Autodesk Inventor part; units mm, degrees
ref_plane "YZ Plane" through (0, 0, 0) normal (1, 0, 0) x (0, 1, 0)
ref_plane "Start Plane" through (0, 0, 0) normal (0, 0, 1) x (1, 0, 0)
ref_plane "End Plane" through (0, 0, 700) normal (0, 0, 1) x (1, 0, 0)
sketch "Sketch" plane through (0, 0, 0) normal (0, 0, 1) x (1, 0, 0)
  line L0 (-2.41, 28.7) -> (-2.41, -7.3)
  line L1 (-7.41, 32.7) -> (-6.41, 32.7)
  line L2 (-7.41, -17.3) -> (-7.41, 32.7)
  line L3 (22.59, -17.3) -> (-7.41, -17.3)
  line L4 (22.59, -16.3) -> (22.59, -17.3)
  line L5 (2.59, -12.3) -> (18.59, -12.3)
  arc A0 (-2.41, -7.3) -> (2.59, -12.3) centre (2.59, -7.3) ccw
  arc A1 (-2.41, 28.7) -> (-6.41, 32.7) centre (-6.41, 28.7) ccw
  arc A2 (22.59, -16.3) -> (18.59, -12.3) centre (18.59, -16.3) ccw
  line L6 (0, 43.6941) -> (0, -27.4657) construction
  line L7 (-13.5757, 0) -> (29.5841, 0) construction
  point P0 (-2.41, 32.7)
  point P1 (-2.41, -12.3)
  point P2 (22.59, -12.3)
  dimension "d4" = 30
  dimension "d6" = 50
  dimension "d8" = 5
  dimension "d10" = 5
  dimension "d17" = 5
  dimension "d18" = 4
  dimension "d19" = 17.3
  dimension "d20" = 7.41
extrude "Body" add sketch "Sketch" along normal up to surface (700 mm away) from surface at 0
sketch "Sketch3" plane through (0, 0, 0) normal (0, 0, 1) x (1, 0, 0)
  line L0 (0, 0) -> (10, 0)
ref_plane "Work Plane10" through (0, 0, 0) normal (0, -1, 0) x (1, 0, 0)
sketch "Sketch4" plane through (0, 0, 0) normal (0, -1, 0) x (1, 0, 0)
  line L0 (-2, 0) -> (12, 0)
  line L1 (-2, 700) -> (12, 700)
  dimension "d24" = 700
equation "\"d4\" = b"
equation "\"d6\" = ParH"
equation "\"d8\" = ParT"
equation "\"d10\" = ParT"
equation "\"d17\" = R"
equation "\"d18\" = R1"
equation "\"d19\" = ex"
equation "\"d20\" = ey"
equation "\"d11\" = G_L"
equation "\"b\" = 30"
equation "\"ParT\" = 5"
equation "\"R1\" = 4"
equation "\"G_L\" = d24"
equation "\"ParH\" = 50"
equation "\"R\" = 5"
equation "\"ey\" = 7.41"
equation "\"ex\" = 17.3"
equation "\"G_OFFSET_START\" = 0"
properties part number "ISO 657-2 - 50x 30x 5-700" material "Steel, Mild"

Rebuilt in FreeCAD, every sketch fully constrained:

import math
import FreeCAD as App
import Part
import Sketcher

V = App.Vector
Q = App.Units.Quantity

doc = App.newDocument("Part")
body = doc.addObject("PartDesign::Body", "Body")

# Sketch on XY plane
sketch1 = body.newObject("Sketcher::SketchObject", "Sketch")
sketch1.AttachmentSupport = (doc.getObject("XY_Plane"), [""])
sketch1.MapMode = "FlatFace"
sketch1.addGeometry([
    Part.LineSegment(V(-2.4, -7.3, 0), V(-2.4, 28.7, 0)),  # 0
    Part.ArcOfCircle(Part.Circle(V(-6.4, 28.7, 0), V(0, 0, 1), 4), math.radians(0), math.radians(90)),  # 1
    Part.LineSegment(V(-6.4, 32.7, 0), V(-7.4, 32.7, 0)),  # 2
    Part.LineSegment(V(-7.4, 32.7, 0), V(-7.4, -17.3, 0)),  # 3
    Part.LineSegment(V(-7.4, -17.3, 0), V(22.6, -17.3, 0)),  # 4
    Part.LineSegment(V(22.6, -17.3, 0), V(22.6, -16.3, 0)),  # 5
    Part.ArcOfCircle(Part.Circle(V(18.6, -16.3, 0), V(0, 0, 1), 4), math.radians(0), math.radians(90)),  # 6
    Part.LineSegment(V(18.6, -12.3, 0), V(2.6, -12.3, 0)),  # 7
    Part.ArcOfCircle(Part.Circle(V(2.6, -7.3, 0), V(0, 0, 1), 5), math.radians(180), math.radians(270)),  # 8
], False)
sketch1.addConstraint([
    Sketcher.Constraint("Tangent", 0, 2, 1, 1),
    Sketcher.Constraint("Tangent", 1, 2, 2, 1),
    Sketcher.Constraint("Coincident", 2, 2, 3, 1),
    Sketcher.Constraint("Coincident", 3, 2, 4, 1),
    Sketcher.Constraint("Coincident", 4, 2, 5, 1),
    Sketcher.Constraint("Tangent", 5, 2, 6, 1),
    Sketcher.Constraint("Tangent", 6, 2, 7, 1),
    Sketcher.Constraint("Tangent", 7, 2, 8, 2),
    Sketcher.Constraint("Tangent", 8, 1, 0, 1),
    Sketcher.Constraint("Vertical", 0),
    Sketcher.Constraint("Horizontal", 2),
    Sketcher.Constraint("Vertical", 3),
    Sketcher.Constraint("Horizontal", 4),
    Sketcher.Constraint("Vertical", 5),
    Sketcher.Constraint("Horizontal", 7),
    Sketcher.Constraint("Equal", 1, 6),
    Sketcher.Constraint("Equal", 2, 5),
    Sketcher.Constraint("Radius", 1, Q("4 mm")),
    Sketcher.Constraint("Radius", 8, Q("5 mm")),
    Sketcher.Constraint("DistanceX", 4, 1, 4, 2, Q("30 mm")),
    Sketcher.Constraint("DistanceY", 3, 2, 3, 1, Q("50 mm")),
    Sketcher.Constraint("DistanceX", 2, 2, 0, 2, Q("5 mm")),
    Sketcher.Constraint("DistanceY", 3, 2, -1, 1, Q("17.3 mm")),
    Sketcher.Constraint("DistanceX", 2, 2, -1, 1, Q("7.41 mm")),
])
pad1 = body.newObject("PartDesign::Pad", "Pad")
pad1.Profile = sketch1
pad1.Length = 700

doc.recompute()
